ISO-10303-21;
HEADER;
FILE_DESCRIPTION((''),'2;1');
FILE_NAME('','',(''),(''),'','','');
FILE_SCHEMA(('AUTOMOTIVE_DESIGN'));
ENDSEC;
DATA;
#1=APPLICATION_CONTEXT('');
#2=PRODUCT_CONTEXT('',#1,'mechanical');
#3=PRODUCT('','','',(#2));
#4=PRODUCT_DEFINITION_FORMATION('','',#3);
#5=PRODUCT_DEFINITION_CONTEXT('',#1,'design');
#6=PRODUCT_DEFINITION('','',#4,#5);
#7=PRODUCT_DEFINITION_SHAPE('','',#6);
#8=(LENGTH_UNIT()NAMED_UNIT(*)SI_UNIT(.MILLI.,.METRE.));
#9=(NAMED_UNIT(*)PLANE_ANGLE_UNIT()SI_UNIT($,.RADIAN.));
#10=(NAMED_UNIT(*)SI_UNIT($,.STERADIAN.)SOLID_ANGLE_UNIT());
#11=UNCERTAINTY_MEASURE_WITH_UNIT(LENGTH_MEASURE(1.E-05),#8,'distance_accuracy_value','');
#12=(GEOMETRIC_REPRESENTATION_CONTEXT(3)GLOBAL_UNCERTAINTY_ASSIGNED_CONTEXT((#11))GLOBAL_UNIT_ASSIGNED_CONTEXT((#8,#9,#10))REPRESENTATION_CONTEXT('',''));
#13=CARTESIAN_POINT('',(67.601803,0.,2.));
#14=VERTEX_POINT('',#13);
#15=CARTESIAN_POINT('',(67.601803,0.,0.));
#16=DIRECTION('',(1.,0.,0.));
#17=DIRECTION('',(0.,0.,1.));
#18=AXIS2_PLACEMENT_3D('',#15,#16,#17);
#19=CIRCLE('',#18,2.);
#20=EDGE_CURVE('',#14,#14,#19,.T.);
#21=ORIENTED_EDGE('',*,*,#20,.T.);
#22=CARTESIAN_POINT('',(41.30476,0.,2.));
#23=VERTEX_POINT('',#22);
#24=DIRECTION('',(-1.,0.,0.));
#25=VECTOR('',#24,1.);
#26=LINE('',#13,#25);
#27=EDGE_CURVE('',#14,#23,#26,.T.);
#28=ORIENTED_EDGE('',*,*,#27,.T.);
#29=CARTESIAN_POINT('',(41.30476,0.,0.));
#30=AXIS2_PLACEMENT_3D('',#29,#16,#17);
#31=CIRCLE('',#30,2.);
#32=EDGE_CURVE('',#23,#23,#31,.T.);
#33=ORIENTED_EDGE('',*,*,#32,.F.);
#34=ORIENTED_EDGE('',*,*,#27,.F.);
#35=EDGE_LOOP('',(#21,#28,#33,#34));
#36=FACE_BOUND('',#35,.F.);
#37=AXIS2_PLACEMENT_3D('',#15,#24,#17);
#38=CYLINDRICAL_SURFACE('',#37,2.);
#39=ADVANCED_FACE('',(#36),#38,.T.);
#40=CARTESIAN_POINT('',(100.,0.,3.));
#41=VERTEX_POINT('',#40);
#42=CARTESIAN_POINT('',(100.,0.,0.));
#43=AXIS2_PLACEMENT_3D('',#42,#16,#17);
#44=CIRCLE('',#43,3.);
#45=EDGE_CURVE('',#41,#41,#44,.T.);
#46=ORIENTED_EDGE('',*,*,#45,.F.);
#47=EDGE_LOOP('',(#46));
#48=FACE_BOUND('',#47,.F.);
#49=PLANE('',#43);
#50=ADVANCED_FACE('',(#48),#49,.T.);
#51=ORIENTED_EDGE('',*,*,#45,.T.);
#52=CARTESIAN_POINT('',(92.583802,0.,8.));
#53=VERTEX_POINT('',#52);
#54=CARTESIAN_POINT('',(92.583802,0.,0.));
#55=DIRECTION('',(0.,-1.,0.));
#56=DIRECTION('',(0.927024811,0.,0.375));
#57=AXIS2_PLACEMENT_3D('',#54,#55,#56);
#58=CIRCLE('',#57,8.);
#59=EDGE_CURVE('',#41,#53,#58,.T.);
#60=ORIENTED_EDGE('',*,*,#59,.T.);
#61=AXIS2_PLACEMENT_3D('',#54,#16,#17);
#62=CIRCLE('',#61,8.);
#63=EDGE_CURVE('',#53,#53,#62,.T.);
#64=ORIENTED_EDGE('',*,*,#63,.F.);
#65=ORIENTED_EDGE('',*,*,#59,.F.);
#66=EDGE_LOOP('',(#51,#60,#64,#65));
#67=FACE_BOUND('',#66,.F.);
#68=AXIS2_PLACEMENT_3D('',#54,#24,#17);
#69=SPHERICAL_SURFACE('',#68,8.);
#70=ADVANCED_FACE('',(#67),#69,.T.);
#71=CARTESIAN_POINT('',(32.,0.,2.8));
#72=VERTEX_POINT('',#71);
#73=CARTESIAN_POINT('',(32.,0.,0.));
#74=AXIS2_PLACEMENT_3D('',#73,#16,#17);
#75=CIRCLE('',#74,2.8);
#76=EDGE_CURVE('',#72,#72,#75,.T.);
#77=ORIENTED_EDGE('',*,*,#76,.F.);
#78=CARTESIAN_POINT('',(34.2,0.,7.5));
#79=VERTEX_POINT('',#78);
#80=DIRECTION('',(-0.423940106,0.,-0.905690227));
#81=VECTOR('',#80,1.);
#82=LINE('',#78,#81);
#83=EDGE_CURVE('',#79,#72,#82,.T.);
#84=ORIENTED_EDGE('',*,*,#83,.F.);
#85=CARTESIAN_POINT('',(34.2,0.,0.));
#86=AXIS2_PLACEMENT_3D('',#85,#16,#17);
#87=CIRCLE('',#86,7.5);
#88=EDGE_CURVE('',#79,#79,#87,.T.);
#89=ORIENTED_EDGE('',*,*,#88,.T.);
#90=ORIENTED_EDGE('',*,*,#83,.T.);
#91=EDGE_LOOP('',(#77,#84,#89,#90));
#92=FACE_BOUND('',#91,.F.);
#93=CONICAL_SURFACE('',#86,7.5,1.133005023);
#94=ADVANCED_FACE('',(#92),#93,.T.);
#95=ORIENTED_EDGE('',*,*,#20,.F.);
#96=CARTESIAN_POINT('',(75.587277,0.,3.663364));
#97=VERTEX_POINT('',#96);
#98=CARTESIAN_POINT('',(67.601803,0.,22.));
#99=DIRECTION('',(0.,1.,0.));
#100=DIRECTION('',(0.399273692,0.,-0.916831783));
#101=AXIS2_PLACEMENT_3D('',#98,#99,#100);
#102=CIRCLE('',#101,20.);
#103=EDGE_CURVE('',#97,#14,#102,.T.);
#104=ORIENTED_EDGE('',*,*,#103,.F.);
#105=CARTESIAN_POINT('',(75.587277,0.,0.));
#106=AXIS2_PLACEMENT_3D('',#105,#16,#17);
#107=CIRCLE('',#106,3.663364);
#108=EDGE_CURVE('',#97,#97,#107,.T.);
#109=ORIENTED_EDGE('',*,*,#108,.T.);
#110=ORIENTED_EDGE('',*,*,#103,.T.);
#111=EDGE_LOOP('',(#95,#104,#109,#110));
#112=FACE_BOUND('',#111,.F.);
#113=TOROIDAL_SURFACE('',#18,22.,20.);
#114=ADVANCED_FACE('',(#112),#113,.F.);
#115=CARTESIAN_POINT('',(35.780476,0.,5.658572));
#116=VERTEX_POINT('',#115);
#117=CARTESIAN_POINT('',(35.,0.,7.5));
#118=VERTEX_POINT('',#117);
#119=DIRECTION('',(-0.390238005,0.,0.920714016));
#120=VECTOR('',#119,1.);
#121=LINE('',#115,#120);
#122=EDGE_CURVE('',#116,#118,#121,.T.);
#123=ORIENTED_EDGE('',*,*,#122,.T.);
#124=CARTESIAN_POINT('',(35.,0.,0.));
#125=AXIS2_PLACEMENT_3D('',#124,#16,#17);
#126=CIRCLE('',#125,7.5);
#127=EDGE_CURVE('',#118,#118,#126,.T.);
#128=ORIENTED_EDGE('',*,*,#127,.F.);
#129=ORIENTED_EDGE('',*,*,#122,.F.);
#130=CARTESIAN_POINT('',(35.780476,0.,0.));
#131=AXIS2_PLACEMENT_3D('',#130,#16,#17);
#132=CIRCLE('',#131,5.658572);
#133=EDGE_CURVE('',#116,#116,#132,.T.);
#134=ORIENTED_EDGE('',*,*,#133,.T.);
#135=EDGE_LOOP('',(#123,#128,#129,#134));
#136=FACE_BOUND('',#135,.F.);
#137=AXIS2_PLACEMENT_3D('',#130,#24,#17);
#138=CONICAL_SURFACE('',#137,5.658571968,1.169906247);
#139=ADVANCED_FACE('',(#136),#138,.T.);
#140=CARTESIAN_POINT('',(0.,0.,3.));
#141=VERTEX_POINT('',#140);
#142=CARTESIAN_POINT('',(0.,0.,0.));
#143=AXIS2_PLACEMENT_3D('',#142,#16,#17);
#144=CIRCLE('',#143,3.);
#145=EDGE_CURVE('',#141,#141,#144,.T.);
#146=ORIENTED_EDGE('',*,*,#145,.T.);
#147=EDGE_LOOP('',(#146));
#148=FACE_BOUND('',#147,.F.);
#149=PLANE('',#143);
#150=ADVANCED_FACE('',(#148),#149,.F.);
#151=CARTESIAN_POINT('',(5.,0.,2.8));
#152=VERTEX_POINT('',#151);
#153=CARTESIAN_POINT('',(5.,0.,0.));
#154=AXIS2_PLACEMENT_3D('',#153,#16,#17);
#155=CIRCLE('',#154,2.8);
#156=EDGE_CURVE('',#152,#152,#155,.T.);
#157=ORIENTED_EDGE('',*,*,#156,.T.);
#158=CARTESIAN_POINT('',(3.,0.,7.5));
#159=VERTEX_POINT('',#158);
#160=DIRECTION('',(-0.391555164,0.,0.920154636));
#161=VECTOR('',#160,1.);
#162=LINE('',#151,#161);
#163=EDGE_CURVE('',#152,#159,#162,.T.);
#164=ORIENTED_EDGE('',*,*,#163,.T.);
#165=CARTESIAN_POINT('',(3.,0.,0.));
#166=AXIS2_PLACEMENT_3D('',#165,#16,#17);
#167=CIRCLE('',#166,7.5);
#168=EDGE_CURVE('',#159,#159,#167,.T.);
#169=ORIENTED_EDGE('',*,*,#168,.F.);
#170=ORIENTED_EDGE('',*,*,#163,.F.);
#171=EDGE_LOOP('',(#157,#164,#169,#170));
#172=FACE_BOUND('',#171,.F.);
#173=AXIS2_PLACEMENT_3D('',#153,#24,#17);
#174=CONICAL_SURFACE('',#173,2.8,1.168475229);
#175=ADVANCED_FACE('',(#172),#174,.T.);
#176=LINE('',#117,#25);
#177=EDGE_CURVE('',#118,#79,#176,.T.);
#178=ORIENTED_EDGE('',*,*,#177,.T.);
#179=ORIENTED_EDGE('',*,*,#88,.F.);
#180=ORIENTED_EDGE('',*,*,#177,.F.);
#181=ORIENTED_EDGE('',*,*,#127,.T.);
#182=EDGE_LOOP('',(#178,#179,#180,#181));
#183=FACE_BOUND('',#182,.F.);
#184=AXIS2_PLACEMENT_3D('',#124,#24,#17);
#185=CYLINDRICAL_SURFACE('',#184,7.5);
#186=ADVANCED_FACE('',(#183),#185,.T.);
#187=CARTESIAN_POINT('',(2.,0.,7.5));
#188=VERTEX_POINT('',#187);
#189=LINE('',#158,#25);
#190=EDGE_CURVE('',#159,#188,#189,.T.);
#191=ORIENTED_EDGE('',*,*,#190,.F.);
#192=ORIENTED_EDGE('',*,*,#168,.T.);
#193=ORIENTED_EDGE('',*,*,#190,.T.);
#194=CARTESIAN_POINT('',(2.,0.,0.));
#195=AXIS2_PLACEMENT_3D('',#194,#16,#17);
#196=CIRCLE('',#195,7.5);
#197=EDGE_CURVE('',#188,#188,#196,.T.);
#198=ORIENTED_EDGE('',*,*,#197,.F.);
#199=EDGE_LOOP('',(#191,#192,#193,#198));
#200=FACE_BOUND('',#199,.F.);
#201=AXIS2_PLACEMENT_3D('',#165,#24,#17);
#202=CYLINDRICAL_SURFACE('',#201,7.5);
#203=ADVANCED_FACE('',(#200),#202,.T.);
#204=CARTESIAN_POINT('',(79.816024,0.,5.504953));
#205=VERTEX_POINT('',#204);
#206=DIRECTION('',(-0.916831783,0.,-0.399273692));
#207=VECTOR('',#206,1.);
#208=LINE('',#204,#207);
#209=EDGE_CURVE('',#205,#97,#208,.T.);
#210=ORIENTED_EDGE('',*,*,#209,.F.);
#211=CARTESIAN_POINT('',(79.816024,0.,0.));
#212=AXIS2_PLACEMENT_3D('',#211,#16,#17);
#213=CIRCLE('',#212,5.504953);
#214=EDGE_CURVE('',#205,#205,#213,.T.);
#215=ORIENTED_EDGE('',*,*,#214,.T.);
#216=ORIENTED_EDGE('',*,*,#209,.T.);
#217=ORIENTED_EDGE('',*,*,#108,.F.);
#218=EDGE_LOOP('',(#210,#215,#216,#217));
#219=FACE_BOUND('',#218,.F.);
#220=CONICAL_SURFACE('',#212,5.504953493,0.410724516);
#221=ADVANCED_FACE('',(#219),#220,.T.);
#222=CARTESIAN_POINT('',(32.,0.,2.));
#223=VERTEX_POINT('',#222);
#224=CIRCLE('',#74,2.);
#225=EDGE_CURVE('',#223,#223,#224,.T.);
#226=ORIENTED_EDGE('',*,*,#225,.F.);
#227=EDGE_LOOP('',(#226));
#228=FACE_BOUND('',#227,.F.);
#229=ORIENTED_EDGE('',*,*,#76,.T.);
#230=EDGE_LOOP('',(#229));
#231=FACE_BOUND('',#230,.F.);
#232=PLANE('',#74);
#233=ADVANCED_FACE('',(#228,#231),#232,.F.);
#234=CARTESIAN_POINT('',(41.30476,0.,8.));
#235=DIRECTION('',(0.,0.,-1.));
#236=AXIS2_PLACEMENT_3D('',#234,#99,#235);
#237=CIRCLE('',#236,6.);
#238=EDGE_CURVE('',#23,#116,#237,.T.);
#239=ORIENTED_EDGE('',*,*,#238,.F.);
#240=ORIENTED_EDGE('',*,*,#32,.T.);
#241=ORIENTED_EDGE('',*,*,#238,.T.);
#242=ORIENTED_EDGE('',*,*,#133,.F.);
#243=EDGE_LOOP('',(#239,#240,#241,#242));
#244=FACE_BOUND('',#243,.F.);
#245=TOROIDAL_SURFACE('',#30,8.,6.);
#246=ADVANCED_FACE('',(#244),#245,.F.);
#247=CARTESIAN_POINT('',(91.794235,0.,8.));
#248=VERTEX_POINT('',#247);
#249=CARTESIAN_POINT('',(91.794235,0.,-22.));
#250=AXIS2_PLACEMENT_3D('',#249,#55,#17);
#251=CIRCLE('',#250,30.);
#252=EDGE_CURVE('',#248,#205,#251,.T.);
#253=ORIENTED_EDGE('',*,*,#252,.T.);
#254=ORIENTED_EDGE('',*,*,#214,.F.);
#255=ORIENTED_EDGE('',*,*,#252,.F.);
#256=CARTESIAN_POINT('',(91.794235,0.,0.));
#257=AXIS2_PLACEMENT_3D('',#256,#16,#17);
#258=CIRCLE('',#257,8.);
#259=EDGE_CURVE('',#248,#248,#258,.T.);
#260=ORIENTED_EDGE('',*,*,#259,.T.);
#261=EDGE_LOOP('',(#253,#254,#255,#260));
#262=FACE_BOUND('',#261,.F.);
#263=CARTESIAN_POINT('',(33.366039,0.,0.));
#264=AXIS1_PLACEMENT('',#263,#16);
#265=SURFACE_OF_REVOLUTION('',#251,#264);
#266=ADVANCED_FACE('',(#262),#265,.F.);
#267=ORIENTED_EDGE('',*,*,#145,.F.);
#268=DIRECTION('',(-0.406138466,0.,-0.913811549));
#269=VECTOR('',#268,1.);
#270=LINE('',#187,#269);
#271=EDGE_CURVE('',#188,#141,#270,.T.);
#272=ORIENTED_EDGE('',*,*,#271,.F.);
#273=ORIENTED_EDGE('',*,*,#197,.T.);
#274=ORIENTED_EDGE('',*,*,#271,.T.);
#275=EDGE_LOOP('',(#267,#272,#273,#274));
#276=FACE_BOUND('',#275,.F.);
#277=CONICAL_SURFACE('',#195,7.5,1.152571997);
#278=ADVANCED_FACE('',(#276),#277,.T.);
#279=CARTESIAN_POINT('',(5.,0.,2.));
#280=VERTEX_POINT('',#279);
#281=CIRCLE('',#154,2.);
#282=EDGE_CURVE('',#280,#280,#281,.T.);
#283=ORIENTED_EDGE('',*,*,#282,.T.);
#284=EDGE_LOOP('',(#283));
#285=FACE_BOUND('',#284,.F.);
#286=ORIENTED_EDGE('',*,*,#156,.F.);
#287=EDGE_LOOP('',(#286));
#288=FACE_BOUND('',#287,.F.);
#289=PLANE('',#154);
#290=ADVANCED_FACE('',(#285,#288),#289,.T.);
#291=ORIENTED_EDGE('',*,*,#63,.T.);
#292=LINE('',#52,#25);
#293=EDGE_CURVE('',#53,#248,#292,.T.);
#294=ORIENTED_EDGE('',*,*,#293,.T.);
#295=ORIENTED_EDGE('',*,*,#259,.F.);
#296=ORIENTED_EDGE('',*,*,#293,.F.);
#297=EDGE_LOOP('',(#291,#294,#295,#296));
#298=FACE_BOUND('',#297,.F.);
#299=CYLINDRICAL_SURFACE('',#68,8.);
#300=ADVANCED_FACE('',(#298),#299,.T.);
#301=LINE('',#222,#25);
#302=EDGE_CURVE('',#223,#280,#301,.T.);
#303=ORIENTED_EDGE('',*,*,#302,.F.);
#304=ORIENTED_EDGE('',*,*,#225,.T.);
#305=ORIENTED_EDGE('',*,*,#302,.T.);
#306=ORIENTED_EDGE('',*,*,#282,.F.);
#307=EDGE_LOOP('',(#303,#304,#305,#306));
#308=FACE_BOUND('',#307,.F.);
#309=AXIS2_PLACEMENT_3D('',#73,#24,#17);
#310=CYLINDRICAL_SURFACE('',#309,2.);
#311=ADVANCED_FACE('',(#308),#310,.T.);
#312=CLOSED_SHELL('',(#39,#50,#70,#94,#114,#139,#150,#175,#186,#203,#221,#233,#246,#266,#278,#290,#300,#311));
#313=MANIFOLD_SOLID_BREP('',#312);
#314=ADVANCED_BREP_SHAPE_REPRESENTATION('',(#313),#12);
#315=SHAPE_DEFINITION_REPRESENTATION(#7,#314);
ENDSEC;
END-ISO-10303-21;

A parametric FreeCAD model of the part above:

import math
import FreeCAD as App
import Part
import Sketcher
Q = App.Units.Quantity

doc = App.newDocument("Part")
body = doc.addObject("PartDesign::Body", "Body")

sketch1 = doc.addObject("Sketcher::SketchObject", "Sketch")
body.addObject(sketch1)
sketch1.AttachmentSupport = (doc.XZ_Plane, [""])
sketch1.MapMode = "FlatFace"
sketch1.addGeometry([
    Part.LineSegment(App.Vector(32, 2, 0), App.Vector(5, 2, 0)),
    Part.LineSegment(App.Vector(5, 2, 0), App.Vector(5, 2.8, 0)),
    Part.LineSegment(App.Vector(5, 2.8, 0), App.Vector(3, 7.5, 0)),
    Part.LineSegment(App.Vector(3, 7.5, 0), App.Vector(2, 7.5, 0)),
    Part.LineSegment(App.Vector(2, 7.5, 0), App.Vector(0, 3, 0)),
    Part.LineSegment(App.Vector(0, 3, 0), App.Vector(0, 0, 0)),
    Part.LineSegment(App.Vector(0, 0, 0), App.Vector(100, 0, 0)),
    Part.LineSegment(App.Vector(100, 0, 0), App.Vector(100, 3, 0)),
    Part.ArcOfCircle(Part.Circle(App.Vector(92.583802, 0, 0), App.Vector(0, 0, 1), 8), math.radians(22.024313), math.radians(90)),
    Part.LineSegment(App.Vector(92.583802, 8, 0), App.Vector(91.794235, 8, 0)),
    Part.ArcOfCircle(Part.Circle(App.Vector(91.794235, -22, 0), App.Vector(0, 0, 1), 30), math.radians(90), math.radians(113.532781)),
    Part.LineSegment(App.Vector(79.816024, 5.504953, 0), App.Vector(75.587277, 3.663364, 0)),
    Part.ArcOfCircle(Part.Circle(App.Vector(67.601803, 22, 0), App.Vector(0, 0, 1), 20), math.radians(-90), math.radians(-66.467219)),
    Part.LineSegment(App.Vector(67.601803, 2, 0), App.Vector(41.30476, 2, 0)),
    Part.ArcOfCircle(Part.Circle(App.Vector(41.30476, 8, 0), App.Vector(0, 0, 1), 6), math.radians(-157.03069), math.radians(-90)),
    Part.LineSegment(App.Vector(35.780476, 5.658572, 0), App.Vector(35, 7.5, 0)),
    Part.LineSegment(App.Vector(35, 7.5, 0), App.Vector(34.2, 7.5, 0)),
    Part.LineSegment(App.Vector(34.2, 7.5, 0), App.Vector(32, 2.8, 0)),
    Part.LineSegment(App.Vector(32, 2.8, 0), App.Vector(32, 2, 0)),
], False)
sketch1.addConstraint([
    Sketcher.Constraint("Coincident", 0, 2, 1, 1),
    Sketcher.Constraint("Coincident", 1, 2, 2, 1),
    Sketcher.Constraint("Coincident", 2, 2, 3, 1),
    Sketcher.Constraint("Coincident", 3, 2, 4, 1),
    Sketcher.Constraint("Coincident", 4, 2, 5, 1),
    Sketcher.Constraint("Coincident", 5, 2, 6, 1),
    Sketcher.Constraint("Coincident", 6, 2, 7, 1),
    Sketcher.Constraint("Coincident", 7, 2, 8, 1),
    Sketcher.Constraint("Tangent", 8, 2, 9, 1),
    Sketcher.Constraint("Tangent", 9, 2, 10, 1),
    Sketcher.Constraint("Tangent", 10, 2, 11, 1),
    Sketcher.Constraint("Tangent", 11, 2, 12, 2),
    Sketcher.Constraint("Tangent", 12, 1, 13, 1),
    Sketcher.Constraint("Tangent", 13, 2, 14, 2),
    Sketcher.Constraint("Tangent", 14, 1, 15, 1),
    Sketcher.Constraint("Coincident", 15, 2, 16, 1),
    Sketcher.Constraint("Coincident", 16, 2, 17, 1),
    Sketcher.Constraint("Coincident", 17, 2, 18, 1),
    Sketcher.Constraint("Coincident", 18, 2, 0, 1),
    Sketcher.Constraint("Horizontal", 0),
    Sketcher.Constraint("Vertical", 1),
    Sketcher.Constraint("Horizontal", 3),
    Sketcher.Constraint("Vertical", 5),
    Sketcher.Constraint("Horizontal", 6),
    Sketcher.Constraint("Vertical", 7),
    Sketcher.Constraint("Horizontal", 9),
    Sketcher.Constraint("Horizontal", 13),
    Sketcher.Constraint("Horizontal", 16),
    Sketcher.Constraint("Vertical", 18),
    Sketcher.Constraint("Coincident", 5, 2, -1, 1),
    Sketcher.Constraint("PointOnObject", 8, 3, -1),
    Sketcher.Constraint("Horizontal", 4, 2, 7, 2),
    Sketcher.Constraint("Horizontal", 14, 3, 8, 2),
    Sketcher.Constraint("Horizontal", 0, 2, 12, 1),
    Sketcher.Constraint("Horizontal", 3, 2, 15, 2),
    Sketcher.Constraint("Horizontal", 1, 2, 17, 2),
    Sketcher.Constraint("Equal", 16, 1),
    Sketcher.Constraint("Radius", 8, Q("8 mm")),
    Sketcher.Constraint("Radius", 10, Q("30 mm")),
    Sketcher.Constraint("Radius", 12, Q("20 mm")),
    Sketcher.Constraint("Radius", 14, Q("6 mm")),
    Sketcher.Constraint("DistanceX", 0, 2, 0, 1, Q("27 mm")),
    Sketcher.Constraint("DistanceX", 3, 2, 3, 1, Q("1 mm")),
    Sketcher.Constraint("DistanceX", 6, 1, 6, 2, Q("100 mm")),
    Sketcher.Constraint("DistanceY", 5, 2, 5, 1, Q("3 mm")),
    Sketcher.Constraint("Distance", 15, Q("2 mm")),
    Sketcher.Constraint("DistanceX", 16, 2, 16, 1, Q("0.8 mm")),
    Sketcher.Constraint("DistanceX", -1, 1, 0, 2, Q("5 mm")),
    Sketcher.Constraint("DistanceX", -1, 1, 2, 2, Q("3 mm")),
    Sketcher.Constraint("DistanceX", -1, 1, 15, 2, Q("35 mm")),
    Sketcher.Constraint("DistanceY", -1, 1, 2, 2, Q("7.5 mm")),
    Sketcher.Constraint("DistanceX", 12, 3, 8, 3, Q("24.981998 mm")),
    Sketcher.Constraint("DistanceX", 9, 2, 9, 1, Q("0.789567 mm")),
])
revolution = doc.addObject("PartDesign::Revolution", "Revolution")
body.addObject(revolution)
revolution.Profile = sketch1
revolution.ReferenceAxis = (sketch1, ["H_Axis"])
revolution.Angle = 360

doc.recompute()
